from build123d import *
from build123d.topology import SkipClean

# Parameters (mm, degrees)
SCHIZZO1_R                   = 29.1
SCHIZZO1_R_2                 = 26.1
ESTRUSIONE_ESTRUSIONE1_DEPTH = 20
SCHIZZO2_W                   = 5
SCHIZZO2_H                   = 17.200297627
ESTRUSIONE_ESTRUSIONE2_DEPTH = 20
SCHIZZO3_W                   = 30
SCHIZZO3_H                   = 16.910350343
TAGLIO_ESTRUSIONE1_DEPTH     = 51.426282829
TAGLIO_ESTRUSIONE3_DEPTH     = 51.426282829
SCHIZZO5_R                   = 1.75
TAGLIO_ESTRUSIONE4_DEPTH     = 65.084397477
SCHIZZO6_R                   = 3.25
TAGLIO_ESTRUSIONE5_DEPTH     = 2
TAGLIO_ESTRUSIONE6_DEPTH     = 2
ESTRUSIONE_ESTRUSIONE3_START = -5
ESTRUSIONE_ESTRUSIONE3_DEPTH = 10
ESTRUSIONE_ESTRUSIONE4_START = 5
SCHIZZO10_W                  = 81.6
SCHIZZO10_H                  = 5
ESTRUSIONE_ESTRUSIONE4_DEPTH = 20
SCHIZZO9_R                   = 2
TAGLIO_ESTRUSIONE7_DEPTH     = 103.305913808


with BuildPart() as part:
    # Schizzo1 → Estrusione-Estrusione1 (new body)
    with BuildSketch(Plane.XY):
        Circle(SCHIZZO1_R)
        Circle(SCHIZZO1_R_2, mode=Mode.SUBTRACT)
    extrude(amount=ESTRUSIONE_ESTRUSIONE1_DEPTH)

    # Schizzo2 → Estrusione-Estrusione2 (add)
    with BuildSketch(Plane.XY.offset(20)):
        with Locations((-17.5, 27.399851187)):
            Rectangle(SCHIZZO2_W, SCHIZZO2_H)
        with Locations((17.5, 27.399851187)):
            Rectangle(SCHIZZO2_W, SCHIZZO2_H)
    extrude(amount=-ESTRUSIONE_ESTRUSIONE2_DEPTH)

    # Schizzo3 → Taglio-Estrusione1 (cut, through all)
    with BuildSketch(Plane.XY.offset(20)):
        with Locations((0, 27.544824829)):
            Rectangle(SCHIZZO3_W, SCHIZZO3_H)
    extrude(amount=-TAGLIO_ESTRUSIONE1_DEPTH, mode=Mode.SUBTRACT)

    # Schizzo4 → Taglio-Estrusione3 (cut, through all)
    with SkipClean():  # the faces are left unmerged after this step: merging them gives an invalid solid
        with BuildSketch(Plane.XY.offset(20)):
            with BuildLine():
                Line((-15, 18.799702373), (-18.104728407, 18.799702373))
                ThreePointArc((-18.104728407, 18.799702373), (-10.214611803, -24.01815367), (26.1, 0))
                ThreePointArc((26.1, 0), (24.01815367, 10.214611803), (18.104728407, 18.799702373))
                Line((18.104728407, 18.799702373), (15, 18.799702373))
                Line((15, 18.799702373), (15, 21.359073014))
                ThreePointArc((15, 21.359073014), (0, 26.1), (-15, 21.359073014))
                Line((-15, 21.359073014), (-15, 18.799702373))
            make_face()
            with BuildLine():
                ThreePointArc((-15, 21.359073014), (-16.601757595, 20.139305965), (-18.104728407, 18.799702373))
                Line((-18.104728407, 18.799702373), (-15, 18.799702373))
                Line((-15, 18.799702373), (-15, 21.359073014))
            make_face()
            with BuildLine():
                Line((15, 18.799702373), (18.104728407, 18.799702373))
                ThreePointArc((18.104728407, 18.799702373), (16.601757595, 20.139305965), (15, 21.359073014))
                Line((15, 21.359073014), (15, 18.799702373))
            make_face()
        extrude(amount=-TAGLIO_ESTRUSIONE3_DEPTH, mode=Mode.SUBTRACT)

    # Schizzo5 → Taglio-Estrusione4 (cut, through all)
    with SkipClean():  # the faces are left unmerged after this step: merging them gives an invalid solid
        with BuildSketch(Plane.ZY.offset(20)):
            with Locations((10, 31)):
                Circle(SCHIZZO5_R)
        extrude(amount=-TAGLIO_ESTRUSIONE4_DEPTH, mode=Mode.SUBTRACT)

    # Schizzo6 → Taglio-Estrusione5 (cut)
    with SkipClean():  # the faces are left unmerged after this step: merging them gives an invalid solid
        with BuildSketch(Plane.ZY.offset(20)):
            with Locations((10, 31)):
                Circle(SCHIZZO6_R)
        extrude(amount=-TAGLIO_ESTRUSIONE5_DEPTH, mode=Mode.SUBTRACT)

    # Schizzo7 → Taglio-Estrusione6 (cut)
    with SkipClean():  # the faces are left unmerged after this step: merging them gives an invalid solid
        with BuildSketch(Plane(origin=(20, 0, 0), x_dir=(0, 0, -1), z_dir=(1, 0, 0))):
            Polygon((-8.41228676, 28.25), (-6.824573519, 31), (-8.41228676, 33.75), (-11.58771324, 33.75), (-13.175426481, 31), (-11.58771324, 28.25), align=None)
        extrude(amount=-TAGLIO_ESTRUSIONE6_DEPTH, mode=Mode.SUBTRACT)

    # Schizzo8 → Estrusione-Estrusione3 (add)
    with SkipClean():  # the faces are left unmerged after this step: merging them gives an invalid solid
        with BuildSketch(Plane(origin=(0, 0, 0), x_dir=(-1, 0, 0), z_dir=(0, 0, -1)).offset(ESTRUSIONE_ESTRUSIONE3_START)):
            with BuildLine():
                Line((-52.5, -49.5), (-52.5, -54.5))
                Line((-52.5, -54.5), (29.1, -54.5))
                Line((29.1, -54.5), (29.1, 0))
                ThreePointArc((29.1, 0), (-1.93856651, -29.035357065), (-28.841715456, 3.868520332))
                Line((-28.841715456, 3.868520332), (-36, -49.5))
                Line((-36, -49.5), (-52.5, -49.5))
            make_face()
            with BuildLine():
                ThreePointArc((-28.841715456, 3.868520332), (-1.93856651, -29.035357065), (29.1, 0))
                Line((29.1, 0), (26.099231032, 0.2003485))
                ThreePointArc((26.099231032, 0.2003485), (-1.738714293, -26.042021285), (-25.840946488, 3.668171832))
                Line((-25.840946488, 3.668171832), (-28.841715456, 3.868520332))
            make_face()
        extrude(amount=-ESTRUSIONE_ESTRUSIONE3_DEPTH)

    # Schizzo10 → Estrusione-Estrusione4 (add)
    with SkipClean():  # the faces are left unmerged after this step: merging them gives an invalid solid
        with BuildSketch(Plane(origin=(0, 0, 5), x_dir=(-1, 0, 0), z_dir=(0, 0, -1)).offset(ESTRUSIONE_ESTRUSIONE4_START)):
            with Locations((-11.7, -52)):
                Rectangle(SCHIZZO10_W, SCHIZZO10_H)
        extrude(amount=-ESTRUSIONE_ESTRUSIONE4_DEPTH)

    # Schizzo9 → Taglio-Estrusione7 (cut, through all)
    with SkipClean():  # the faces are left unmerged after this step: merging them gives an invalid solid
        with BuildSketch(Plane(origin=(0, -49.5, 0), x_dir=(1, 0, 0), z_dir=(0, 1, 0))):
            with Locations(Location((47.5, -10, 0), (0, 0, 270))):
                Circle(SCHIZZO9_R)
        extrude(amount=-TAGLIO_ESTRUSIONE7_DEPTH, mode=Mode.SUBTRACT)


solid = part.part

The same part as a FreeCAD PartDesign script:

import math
import FreeCAD as App
import Part
import Sketcher
Q = App.Units.Quantity

doc = App.newDocument("Part")
body = doc.addObject("PartDesign::Body", "Body")

# Sketch on XY plane
sketch1 = doc.addObject("Sketcher::SketchObject", "Sketch")
body.addObject(sketch1)
sketch1.AttachmentSupport = (doc.XY_Plane, [""])
sketch1.MapMode = "FlatFace"
sketch1.addGeometry([
    Part.Circle(App.Vector(0, 0, 0), App.Vector(0, 0, 1), 29),
    Part.Circle(App.Vector(0, 0, 0), App.Vector(0, 0, 1), 26),
], False)
sketch1.addConstraint([
    Sketcher.Constraint("Coincident", 0, 3, -1, 1),
    Sketcher.Constraint("Coincident", 1, 3, -1, 1),
    Sketcher.Constraint("Diameter", 0, Q("58.2 mm")),
    Sketcher.Constraint("Diameter", 1, Q("52.2 mm")),
])
pad1 = doc.addObject("PartDesign::Pad", "Pad")
body.addObject(pad1)
pad1.Profile = sketch1
pad1.Length = 20

# Sketch on XY plane
sketch2 = doc.addObject("Sketcher::SketchObject", "Sketch001")
body.addObject(sketch2)
sketch2.AttachmentSupport = (doc.XY_Plane, [""])
sketch2.MapMode = "FlatFace"
sketch2.AttachmentOffset = App.Placement(App.Vector(0, 0, 20), App.Rotation())
sketch2.addGeometry([
    Part.LineSegment(App.Vector(-20, 36, 0), App.Vector(-20, 19, 0)),  # 0
    Part.LineSegment(App.Vector(-20, 19, 0), App.Vector(-15, 19, 0)),  # 1
    Part.LineSegment(App.Vector(-15, 19, 0), App.Vector(-15, 36, 0)),  # 2
    Part.LineSegment(App.Vector(-15, 36, 0), App.Vector(-20, 36, 0)),  # 3
    Part.LineSegment(App.Vector(15, 36, 0), App.Vector(15, 19, 0)),  # 4
    Part.LineSegment(App.Vector(15, 19, 0), App.Vector(20, 19, 0)),  # 5
    Part.LineSegment(App.Vector(20, 19, 0), App.Vector(20, 36, 0)),  # 6
    Part.LineSegment(App.Vector(20, 36, 0), App.Vector(15, 36, 0)),  # 7
], False)
sketch2.addConstraint([
    Sketcher.Constraint("Coincident", 0, 2, 1, 1),
    Sketcher.Constraint("Coincident", 1, 2, 2, 1),
    Sketcher.Constraint("Coincident", 2, 2, 3, 1),
    Sketcher.Constraint("Coincident", 3, 2, 0, 1),
    Sketcher.Constraint("Coincident", 4, 2, 5, 1),
    Sketcher.Constraint("Coincident", 5, 2, 6, 1),
    Sketcher.Constraint("Coincident", 6, 2, 7, 1),
    Sketcher.Constraint("Coincident", 7, 2, 4, 1),
    Sketcher.Constraint("Vertical", 0),
    Sketcher.Constraint("Horizontal", 1),
    Sketcher.Constraint("Vertical", 2),
    Sketcher.Constraint("Horizontal", 3),
    Sketcher.Constraint("Vertical", 4),
    Sketcher.Constraint("Horizontal", 5),
    Sketcher.Constraint("Vertical", 6),
    Sketcher.Constraint("Horizontal", 7),
    Sketcher.Constraint("Symmetric", 1, 2, 4, 2, -2),
    Sketcher.Constraint("Symmetric", 3, 2, 6, 2, -2),
    Sketcher.Constraint("DistanceX", 1, 1, 1, 2, Q("5 mm")),
    Sketcher.Constraint("DistanceX", 0, 2, -1, 1, Q("20 mm")),
    Sketcher.Constraint("DistanceY", -1, 1, 2, 2, Q("36 mm")),
    Sketcher.Constraint("DistanceY", 0, 2, 0, 1, Q("17.200298 mm")),
])
pad2 = doc.addObject("PartDesign::Pad", "Pad001")
body.addObject(pad2)
pad2.Profile = sketch2
pad2.Length = 20
pad2.Reversed = True

# Sketch on XY plane
sketch3 = doc.addObject("Sketcher::SketchObject", "Sketch002")
body.addObject(sketch3)
sketch3.AttachmentSupport = (doc.XY_Plane, [""])
sketch3.MapMode = "FlatFace"
sketch3.AttachmentOffset = App.Placement(App.Vector(0, 0, 20), App.Rotation())
sketch3.addGeometry([
    Part.LineSegment(App.Vector(-15, 36, 0), App.Vector(-15, 19, 0)),
    Part.LineSegment(App.Vector(-15, 19, 0), App.Vector(15, 19, 0)),
    Part.LineSegment(App.Vector(15, 19, 0), App.Vector(15, 36, 0)),
    Part.LineSegment(App.Vector(15, 36, 0), App.Vector(-15, 36, 0)),
], False)
sketch3.addConstraint([
    Sketcher.Constraint("Coincident", 0, 2, 1, 1),
    Sketcher.Constraint("Coincident", 1, 2, 2, 1),
    Sketcher.Constraint("Coincident", 2, 2, 3, 1),
    Sketcher.Constraint("Coincident", 3, 2, 0, 1),
    Sketcher.Constraint("Vertical", 0),
    Sketcher.Constraint("Horizontal", 1),
    Sketcher.Constraint("Vertical", 2),
    Sketcher.Constraint("Horizontal", 3),
    Sketcher.Constraint("DistanceX", 1, 1, 1, 2, Q("30 mm")),
    Sketcher.Constraint("DistanceX", 0, 2, -1, 1, Q("15 mm")),
    Sketcher.Constraint("DistanceY", -1, 1, 2, 2, Q("36 mm")),
    Sketcher.Constraint("DistanceY", 0, 2, 0, 1, Q("16.91035 mm")),
])
pocket1 = doc.addObject("PartDesign::Pocket", "Pocket")
body.addObject(pocket1)
pocket1.Profile = sketch3
pocket1.Type = "ThroughAll"

# Sketch on XY plane
sketch4 = doc.addObject("Sketcher::SketchObject", "Sketch003")
body.addObject(sketch4)
sketch4.AttachmentSupport = (doc.XY_Plane, [""])
sketch4.MapMode = "FlatFace"
sketch4.AttachmentOffset = App.Placement(App.Vector(0, 0, 20), App.Rotation())
sketch4.addGeometry([
    Part.LineSegment(App.Vector(-15, 18.8, 0), App.Vector(-18.1, 18.8, 0)),  # 0
    Part.ArcOfCircle(Part.Circle(App.Vector(0, 0, 0), App.Vector(0, 0, 1), 26.1), math.radians(134), math.radians(406)),  # 1
    Part.LineSegment(App.Vector(18.1, 18.8, 0), App.Vector(15, 18.8, 0)),  # 2
    Part.LineSegment(App.Vector(15, 18.8, 0), App.Vector(15, 21.4, 0)),  # 3
    Part.ArcOfCircle(Part.Circle(App.Vector(0, 0, 0), App.Vector(0, 0, 1), 26.1), math.radians(55), math.radians(125)),  # 4
    Part.LineSegment(App.Vector(-15, 21.4, 0), App.Vector(-15, 18.8, 0)),  # 5
    Part.ArcOfCircle(Part.Circle(App.Vector(0, 0, 0), App.Vector(0, 0, 1), 26.1), math.radians(125.08), math.radians(133.92)),  # 6
    Part.LineSegment(App.Vector(-18.1, 18.8, 0), App.Vector(-15, 18.8, 0)),  # 7
    Part.LineSegment(App.Vector(-15, 18.8, 0), App.Vector(-15, 21.4, 0)),  # 8
    Part.LineSegment(App.Vector(15, 18.8, 0), App.Vector(18.1, 18.8, 0)),  # 9
    Part.ArcOfCircle(Part.Circle(App.Vector(0, 0, 0), App.Vector(0, 0, 1), 26.1), math.radians(46.08), math.radians(54.92)),  # 10
    Part.LineSegment(App.Vector(15, 21.4, 0), App.Vector(15, 18.8, 0)),  # 11
], False)
sketch4.addConstraint([
    Sketcher.Constraint("Coincident", 0, 2, 1, 1),
    Sketcher.Constraint("Coincident", 1, 2, 2, 1),
    Sketcher.Constraint("Coincident", 2, 2, 3, 1),
    Sketcher.Constraint("Coincident", 3, 2, 4, 1),
    Sketcher.Constraint("Coincident", 4, 2, 5, 1),
    Sketcher.Constraint("Coincident", 5, 2, 0, 1),
    Sketcher.Constraint("Coincident", 6, 2, 7, 1),
    Sketcher.Constraint("Coincident", 7, 2, 8, 1),
    Sketcher.Constraint("Coincident", 8, 2, 6, 1),
    Sketcher.Constraint("Coincident", 9, 2, 10, 1),
    Sketcher.Constraint("Coincident", 10, 2, 11, 1),
    Sketcher.Constraint("Coincident", 11, 2, 9, 1),
    Sketcher.Constraint("Horizontal", 0),
    Sketcher.Constraint("Horizontal", 2),
    Sketcher.Constraint("Vertical", 3),
    Sketcher.Constraint("Vertical", 5),
    Sketcher.Constraint("Horizontal", 7),
    Sketcher.Constraint("Vertical", 8),
    Sketcher.Constraint("Horizontal", 9),
    Sketcher.Constraint("Vertical", 11),
    Sketcher.Constraint("Coincident", 1, 3, -1, 1),
    Sketcher.Constraint("Coincident", 4, 3, -1, 1),
    Sketcher.Constraint("Coincident", 6, 3, -1, 1),
    Sketcher.Constraint("Coincident", 10, 3, -1, 1),
    Sketcher.Constraint("Coincident", 6, 2, 0, 2),
    Sketcher.Constraint("Coincident", 8, 2, 4, 2),
    Sketcher.Constraint("Coincident", 9, 2, 1, 2),
    Sketcher.Constraint("Symmetric", 2, 2, 5, 2, -2),
    Sketcher.Constraint("Horizontal", 8, 2, 10, 2),
    Sketcher.Constraint("Radius", 1, Q("26.1 mm")),
    Sketcher.Constraint("DistanceX", -1, 1, 2, 2, Q("15 mm")),
    Sketcher.Constraint("DistanceX", 0, 2, 0, 1, Q("3.104728 mm")),
])
pocket2 = doc.addObject("PartDesign::Pocket", "Pocket001")
body.addObject(pocket2)
pocket2.Profile = sketch4
pocket2.Type = "ThroughAll"

# Sketch on YZ plane
sketch5 = doc.addObject("Sketcher::SketchObject", "Sketch004")
body.addObject(sketch5)
sketch5.AttachmentSupport = (doc.YZ_Plane, [""])
sketch5.MapMode = "FlatFace"
sketch5.AttachmentOffset = App.Placement(App.Vector(0, 0, -20), App.Rotation())
sketch5.addGeometry(Part.Circle(App.Vector(31, 10, 0), App.Vector(0, 0, 1), 1.8), False)
sketch5.addConstraint([
    Sketcher.Constraint("Diameter", 0, Q("3.5 mm")),
    Sketcher.Constraint("DistanceX", -1, 1, 0, 3, Q("31 mm")),
    Sketcher.Constraint("DistanceY", -1, 1, 0, 3, Q("10 mm")),
])
pocket3 = doc.addObject("PartDesign::Pocket", "Pocket002")
body.addObject(pocket3)
pocket3.Profile = sketch5
pocket3.Type = "ThroughAll"
pocket3.Reversed = True

# Sketch on YZ plane
sketch6 = doc.addObject("Sketcher::SketchObject", "Sketch005")
body.addObject(sketch6)
sketch6.AttachmentSupport = (doc.YZ_Plane, [""])
sketch6.MapMode = "FlatFace"
sketch6.AttachmentOffset = App.Placement(App.Vector(0, 0, -20), App.Rotation())
sketch6.addGeometry(Part.Circle(App.Vector(31, 10, 0), App.Vector(0, 0, 1), 3.2), False)
sketch6.addConstraint([
    Sketcher.Constraint("Diameter", 0, Q("6.5 mm")),
    Sketcher.Constraint("DistanceX", -1, 1, 0, 3, Q("31 mm")),
    Sketcher.Constraint("DistanceY", -1, 1, 0, 3, Q("10 mm")),
])
pocket4 = doc.addObject("PartDesign::Pocket", "Pocket003")
body.addObject(pocket4)
pocket4.Profile = sketch6
pocket4.Length = 2
pocket4.Reversed = True

# Sketch on YZ plane
sketch7 = doc.addObject("Sketcher::SketchObject", "Sketch006")
body.addObject(sketch7)
sketch7.AttachmentSupport = (doc.YZ_Plane, [""])
sketch7.MapMode = "FlatFace"
sketch7.AttachmentOffset = App.Placement(App.Vector(0, 0, 20), App.Rotation())
sketch7.addGeometry([
    Part.LineSegment(App.Vector(28.2, 8.4, 0), App.Vector(31, 6.8, 0)),  # 0
    Part.LineSegment(App.Vector(31, 6.8, 0), App.Vector(33.8, 8.4, 0)),  # 1
    Part.LineSegment(App.Vector(33.8, 8.4, 0), App.Vector(33.8, 11.6, 0)),  # 2
    Part.LineSegment(App.Vector(33.8, 11.6, 0), App.Vector(31, 13.2, 0)),  # 3
    Part.LineSegment(App.Vector(31, 13.2, 0), App.Vector(28.2, 11.6, 0)),  # 4
    Part.LineSegment(App.Vector(28.2, 11.6, 0), App.Vector(28.2, 8.4, 0)),  # 5
], False)
sketch7.addConstraint([
    Sketcher.Constraint("Coincident", 0, 2, 1, 1),
    Sketcher.Constraint("Coincident", 1, 2, 2, 1),
    Sketcher.Constraint("Coincident", 2, 2, 3, 1),
    Sketcher.Constraint("Coincident", 3, 2, 4, 1),
    Sketcher.Constraint("Coincident", 4, 2, 5, 1),
    Sketcher.Constraint("Coincident", 5, 2, 0, 1),
    Sketcher.Constraint("Vertical", 2),
    Sketcher.Constraint("Vertical", 5),
    Sketcher.Constraint("Parallel", 0, 3),
    Sketcher.Constraint("Parallel", 1, 4),
    Sketcher.Constraint("Horizontal", 2, 2, 4, 2),
    Sketcher.Constraint("Horizontal", 1, 2, 5, 2),
    Sketcher.Constraint("Vertical", 0, 2, 3, 2),
    Sketcher.Constraint("Angle", 0, Q("-30 deg")),
    Sketcher.Constraint("DistanceX", -1, 1, 0, 2, Q("31 mm")),
    Sketcher.Constraint("DistanceX", 4, 2, 2, 2, Q("5.5 mm")),
    Sketcher.Constraint("DistanceY", 2, 1, 2, 2, Q("3.175426 mm")),
    Sketcher.Constraint("DistanceY", -1, 1, 0, 2, Q("6.824574 mm")),
])
pocket5 = doc.addObject("PartDesign::Pocket", "Pocket004")
body.addObject(pocket5)
pocket5.Profile = sketch7
pocket5.Length = 2

# Sketch on XY plane
sketch8 = doc.addObject("Sketcher::SketchObject", "Sketch007")
body.addObject(sketch8)
sketch8.AttachmentSupport = (doc.XY_Plane, [""])
sketch8.MapMode = "FlatFace"
sketch8.AttachmentOffset = App.Placement(App.Vector(0, 0, 5), App.Rotation())
sketch8.addGeometry([
    Part.LineSegment(App.Vector(52.5, -49.5, 0), App.Vector(52.5, -54.5, 0)),  # 0
    Part.LineSegment(App.Vector(52.5, -54.5, 0), App.Vector(-29.1, -54.5, 0)),  # 1
    Part.LineSegment(App.Vector(-29.1, -54.5, 0), App.Vector(-29.1, 0, 0)),  # 2
    Part.ArcOfCircle(Part.Circle(App.Vector(0, 0, 0), App.Vector(0, 0, 1), 29.1), math.radians(180), math.radians(367.63945)),  # 3
    Part.LineSegment(App.Vector(28.841715, 3.86852, 0), App.Vector(36, -49.5, 0)),  # 4
    Part.LineSegment(App.Vector(36, -49.5, 0), App.Vector(52.5, -49.5, 0)),  # 5
    Part.ArcOfCircle(Part.Circle(App.Vector(0, 0, 0), App.Vector(0, 0, 1), 29.1), math.radians(180), math.radians(367.63945)),  # 6
    Part.LineSegment(App.Vector(-29.1, 0, 0), App.Vector(-26.099231, 0.200349, 0)),  # 7
    Part.ArcOfCircle(Part.Circle(App.Vector(0, 0, 0), App.Vector(0, 0, 1), 26.1), math.radians(179.560183), math.radians(368.079267)),  # 8
    Part.LineSegment(App.Vector(25.840946, 3.668172, 0), App.Vector(28.841715, 3.86852, 0)),  # 9
], False)
sketch8.addConstraint([
    Sketcher.Constraint("Coincident", 0, 2, 1, 1),
    Sketcher.Constraint("Coincident", 1, 2, 2, 1),
    Sketcher.Constraint("Tangent", 2, 2, 3, 1),
    Sketcher.Constraint("Tangent", 3, 2, 4, 1),
    Sketcher.Constraint("Coincident", 4, 2, 5, 1),
    Sketcher.Constraint("Coincident", 5, 2, 0, 1),
    Sketcher.Constraint("Coincident", 6, 1, 7, 1),
    Sketcher.Constraint("Coincident", 7, 2, 8, 1),
    Sketcher.Constraint("Coincident", 8, 2, 9, 1),
    Sketcher.Constraint("Coincident", 9, 2, 6, 2),
    Sketcher.Constraint("Vertical", 0),
    Sketcher.Constraint("Horizontal", 1),
    Sketcher.Constraint("Vertical", 2),
    Sketcher.Constraint("Horizontal", 5),
    Sketcher.Constraint("Coincident", 3, 3, -1, 1),
    Sketcher.Constraint("Coincident", 6, 3, -1, 1),
    Sketcher.Constraint("Coincident", 8, 3, -1, 1),
    Sketcher.Constraint("Coincident", 6, 1, 2, 2),
    Sketcher.Constraint("Parallel", 7, 9),
    Sketcher.Constraint("Equal", 7, 9),
    Sketcher.Constraint("Radius", 3, Q("29.1 mm")),
    Sketcher.Constraint("Radius", 8, Q("26.1 mm")),
    Sketcher.Constraint("DistanceY", 0, 2, 0, 1, Q("5 mm")),
    Sketcher.Constraint("DistanceX", 1, 2, 1, 1, Q("81.6 mm")),
    Sketcher.Constraint("DistanceX", 5, 1, 5, 2, Q("16.5 mm")),
    Sketcher.Constraint("DistanceY", 2, 1, 2, 2, Q("54.5 mm")),
    Sketcher.Constraint("DistanceY", -1, 1, 7, 2, Q("0.200349 mm")),
])
pad3 = doc.addObject("PartDesign::Pad", "Pad002")
body.addObject(pad3)
pad3.Profile = sketch8
pad3.Length = 10

# Sketch on XY plane
sketch9 = doc.addObject("Sketcher::SketchObject", "Sketch008")
body.addObject(sketch9)
sketch9.AttachmentSupport = (doc.XY_Plane, [""])
sketch9.MapMode = "FlatFace"
sketch9.addGeometry([
    Part.LineSegment(App.Vector(52, -50, 0), App.Vector(52, -54, 0)),
    Part.LineSegment(App.Vector(52, -54, 0), App.Vector(-29, -54, 0)),
    Part.LineSegment(App.Vector(-29, -54, 0), App.Vector(-29, -50, 0)),
    Part.LineSegment(App.Vector(-29, -50, 0), App.Vector(52, -50, 0)),
], False)
sketch9.addConstraint([
    Sketcher.Constraint("Coincident", 0, 2, 1, 1),
    Sketcher.Constraint("Coincident", 1, 2, 2, 1),
    Sketcher.Constraint("Coincident", 2, 2, 3, 1),
    Sketcher.Constraint("Coincident", 3, 2, 0, 1),
    Sketcher.Constraint("Vertical", 0),
    Sketcher.Constraint("Horizontal", 1),
    Sketcher.Constraint("Vertical", 2),
    Sketcher.Constraint("Horizontal", 3),
    Sketcher.Constraint("DistanceY", 0, 2, 0, 1, Q("5 mm")),
    Sketcher.Constraint("DistanceX", 1, 2, 1, 1, Q("81.6 mm")),
    Sketcher.Constraint("DistanceX", -1, 1, 0, 2, Q("52.5 mm")),
    Sketcher.Constraint("DistanceY", 0, 2, -1, 1, Q("54.5 mm")),
])
pad4 = doc.addObject("PartDesign::Pad", "Pad003")
body.addObject(pad4)
pad4.Profile = sketch9
pad4.Length = 20

# Sketch on XZ plane
sketch10 = doc.addObject("Sketcher::SketchObject", "Sketch009")
body.addObject(sketch10)
sketch10.AttachmentSupport = (doc.XZ_Plane, [""])
sketch10.MapMode = "FlatFace"
sketch10.AttachmentOffset = App.Placement(App.Vector(0, 0, 49.5), App.Rotation())
sketch10.addGeometry(Part.Circle(App.Vector(47.5, 10, 0), App.Vector(0, 0, 1), 2), False)
sketch10.addConstraint([
    Sketcher.Constraint("Diameter", 0, Q("4 mm")),
    Sketcher.Constraint("DistanceY", -1, 1, 0, 3, Q("10 mm")),
    Sketcher.Constraint("DistanceX", -1, 1, 0, 3, Q("47.5 mm")),
])
pocket6 = doc.addObject("PartDesign::Pocket", "Pocket005")
body.addObject(pocket6)
pocket6.Profile = sketch10
pocket6.Type = "ThroughAll"
pocket6.Reversed = True

doc.recompute()
